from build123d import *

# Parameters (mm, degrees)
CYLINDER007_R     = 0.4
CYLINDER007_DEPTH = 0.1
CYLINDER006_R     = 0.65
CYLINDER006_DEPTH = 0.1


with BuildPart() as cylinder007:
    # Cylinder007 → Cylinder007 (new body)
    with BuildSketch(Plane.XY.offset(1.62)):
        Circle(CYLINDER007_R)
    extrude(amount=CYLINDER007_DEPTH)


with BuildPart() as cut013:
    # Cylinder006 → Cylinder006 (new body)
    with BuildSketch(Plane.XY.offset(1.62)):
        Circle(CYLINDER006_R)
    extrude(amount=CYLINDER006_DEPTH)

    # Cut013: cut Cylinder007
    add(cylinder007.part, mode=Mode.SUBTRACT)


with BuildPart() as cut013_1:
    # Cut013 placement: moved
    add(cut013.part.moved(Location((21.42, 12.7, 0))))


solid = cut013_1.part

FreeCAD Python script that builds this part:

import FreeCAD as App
import Part
import Sketcher

V = App.Vector
Q = App.Units.Quantity

doc = App.newDocument("Part")
body = doc.addObject("PartDesign::Body", "Body")

# Sketch on XY plane
sketch1 = body.newObject("Sketcher::SketchObject", "Sketch")
sketch1.AttachmentSupport = (doc.getObject("XY_Plane"), [""])
sketch1.MapMode = "FlatFace"
sketch1.AttachmentOffset = App.Placement(V(0, 0, 1.62), App.Rotation())
sketch1.addGeometry(Part.Circle(V(0, 0, 0), V(0, 0, 1), 0.4), False)
sketch1.addConstraint([
    Sketcher.Constraint("Coincident", 0, 3, -1, 1),
    Sketcher.Constraint("Diameter", 0, Q("0.8 mm")),
])
pad1 = body.newObject("PartDesign::Pad", "Pad")
pad1.Profile = sketch1
pad1.Length = 0.1
body2 = doc.addObject("PartDesign::Body", "Body001")

# Sketch on XY plane
sketch2 = body2.newObject("Sketcher::SketchObject", "Sketch001")
sketch2.AttachmentSupport = (doc.getObject("XY_Plane001"), [""])
sketch2.MapMode = "FlatFace"
sketch2.AttachmentOffset = App.Placement(V(0, 0, 1.62), App.Rotation())
sketch2.addGeometry(Part.Circle(V(0, 0, 0), V(0, 0, 1), 0.7), False)
sketch2.addConstraint([
    Sketcher.Constraint("Coincident", 0, 3, -1, 1),
    Sketcher.Constraint("Diameter", 0, Q("1.3 mm")),
])
pad2 = body2.newObject("PartDesign::Pad", "Pad001")
pad2.Profile = sketch2
pad2.Length = 0.1
doc.recompute()

boolean = body2.newObject("PartDesign::Boolean", "Boolean")
boolean.Type = "Cut"
boolean.addObjects([body])
body3 = doc.addObject("PartDesign::Body", "Body002")
doc.recompute()

body2.Placement = App.Placement(V(21.42, 12.7, 0), App.Rotation(V(0, 0, 1), 0))
boolean2 = body3.newObject("PartDesign::Boolean", "Boolean001")
boolean2.Type = "Fuse"
boolean2.addObjects([body2])

doc.recompute()
